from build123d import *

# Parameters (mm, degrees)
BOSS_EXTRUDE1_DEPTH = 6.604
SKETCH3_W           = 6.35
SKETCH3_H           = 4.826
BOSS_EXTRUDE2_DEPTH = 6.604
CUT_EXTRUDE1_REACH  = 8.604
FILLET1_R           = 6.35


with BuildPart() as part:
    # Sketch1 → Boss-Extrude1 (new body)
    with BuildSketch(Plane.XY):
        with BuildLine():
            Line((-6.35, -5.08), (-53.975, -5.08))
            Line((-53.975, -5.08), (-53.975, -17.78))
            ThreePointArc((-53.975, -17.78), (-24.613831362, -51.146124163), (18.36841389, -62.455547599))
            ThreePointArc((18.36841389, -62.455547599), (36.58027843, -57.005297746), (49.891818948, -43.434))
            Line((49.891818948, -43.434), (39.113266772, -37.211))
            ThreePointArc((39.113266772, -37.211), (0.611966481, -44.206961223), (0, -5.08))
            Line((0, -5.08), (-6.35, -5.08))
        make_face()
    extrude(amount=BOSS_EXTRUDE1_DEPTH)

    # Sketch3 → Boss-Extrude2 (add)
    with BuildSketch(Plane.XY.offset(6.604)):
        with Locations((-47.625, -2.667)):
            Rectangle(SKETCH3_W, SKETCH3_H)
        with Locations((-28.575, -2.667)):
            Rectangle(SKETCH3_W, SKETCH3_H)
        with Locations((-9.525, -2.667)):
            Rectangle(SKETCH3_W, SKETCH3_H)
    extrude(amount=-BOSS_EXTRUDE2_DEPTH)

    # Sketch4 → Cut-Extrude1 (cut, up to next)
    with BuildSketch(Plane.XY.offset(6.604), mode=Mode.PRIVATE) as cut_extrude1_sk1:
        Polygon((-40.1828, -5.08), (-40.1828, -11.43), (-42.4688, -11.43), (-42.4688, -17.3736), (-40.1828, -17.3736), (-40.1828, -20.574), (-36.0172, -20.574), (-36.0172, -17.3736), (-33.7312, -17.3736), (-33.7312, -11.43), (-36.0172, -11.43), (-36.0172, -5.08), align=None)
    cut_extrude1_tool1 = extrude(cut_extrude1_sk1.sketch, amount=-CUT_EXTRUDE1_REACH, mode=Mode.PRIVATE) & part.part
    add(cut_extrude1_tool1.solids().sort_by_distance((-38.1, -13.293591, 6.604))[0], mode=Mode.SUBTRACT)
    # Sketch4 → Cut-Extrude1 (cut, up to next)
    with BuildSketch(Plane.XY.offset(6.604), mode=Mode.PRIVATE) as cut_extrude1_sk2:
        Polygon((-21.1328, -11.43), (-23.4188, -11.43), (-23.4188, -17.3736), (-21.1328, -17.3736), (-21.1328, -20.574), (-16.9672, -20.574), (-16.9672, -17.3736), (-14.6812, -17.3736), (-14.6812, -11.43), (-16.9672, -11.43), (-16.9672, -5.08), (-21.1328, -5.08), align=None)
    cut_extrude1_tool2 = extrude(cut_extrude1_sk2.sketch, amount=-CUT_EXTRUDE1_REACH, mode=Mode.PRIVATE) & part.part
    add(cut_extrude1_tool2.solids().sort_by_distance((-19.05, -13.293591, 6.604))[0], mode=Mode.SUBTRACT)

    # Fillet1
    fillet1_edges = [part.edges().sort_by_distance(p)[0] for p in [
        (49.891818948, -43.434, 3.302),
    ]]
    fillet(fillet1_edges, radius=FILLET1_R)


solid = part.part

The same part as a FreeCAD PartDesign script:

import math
import FreeCAD as App
import Part
import Sketcher

V = App.Vector
Q = App.Units.Quantity


def edges_at(feature, points):
    """Names of the edges that pass closest to the given points."""
    edges = feature.Shape.Edges
    near = lambda p: min(range(len(edges)), key=lambda i: edges[i].distToShape(Part.Vertex(*p))[0])
    return sorted({f"Edge{near(p) + 1}" for p in points})

doc = App.newDocument("Part")
body = doc.addObject("PartDesign::Body", "Body")

sketch1 = doc.addObject("Sketcher::SketchObject", "Sketch")
body.addObject(sketch1)
sketch1.AttachmentSupport = (doc.XY_Plane, [""])
sketch1.MapMode = "FlatFace"
sketch1.addGeometry(Part.LineSegment(V(-54, -5, 0), V(-54, -18, 0)), False)
sketch1.addGeometry(Part.ArcOfCircle(Part.Circle(V(15, 14, 0), V(0, 0, 1), 76), math.radians(-156), math.radians(-88)), False)
sketch1.addGeometry(Part.ArcOfCircle(Part.Circle(V(17, -24, 0), V(0, 0, 1), 38), math.radians(-88), math.radians(-30)), False)
sketch1.addGeometry(Part.LineSegment(V(50, -43, 0), V(39, -37, 0)), False)
sketch1.addGeometry(Part.ArcOfCircle(Part.Circle(V(17, -24, 0), V(0, 0, 1), 26), math.radians(131), math.radians(330)), False)
sketch1.addGeometry(Part.LineSegment(V(0, -5, 0), V(-54, -5, 0)), False)
sketch1.addConstraint(Sketcher.Constraint("Coincident", 0, 2, 1, 1))
sketch1.addConstraint(Sketcher.Constraint("Tangent", 1, 2, 2, 1))
sketch1.addConstraint(Sketcher.Constraint("Coincident", 2, 2, 3, 1))
sketch1.addConstraint(Sketcher.Constraint("Coincident", 3, 2, 4, 2))
sketch1.addConstraint(Sketcher.Constraint("Coincident", 4, 1, 5, 1))
sketch1.addConstraint(Sketcher.Constraint("Coincident", 5, 2, 0, 1))
sketch1.addConstraint(Sketcher.Constraint("Vertical", 0))
sketch1.addConstraint(Sketcher.Constraint("Horizontal", 5))
sketch1.addConstraint(Sketcher.Constraint("Coincident", 4, 3, 2, 3))
sketch1.addConstraint(Sketcher.Constraint("PointOnObject", 4, 1, -2))
sketch1.addConstraint(Sketcher.Constraint("Radius", 1, Q("3 in")))
sketch1.addConstraint(Sketcher.Constraint("Radius", 2, Q("1.5 in")))
sketch1.addConstraint(Sketcher.Constraint("Radius", 4, Q("1.01 in")))
sketch1.addConstraint(Sketcher.Constraint("DistanceY", 0, 2, 0, 1, Q("0.5 in")))
sketch1.addConstraint(Sketcher.Constraint("Angle", 3, Q("150 deg")))
sketch1.addConstraint(Sketcher.Constraint("DistanceY", 0, 2, -1, 1, Q("0.7 in")))
sketch1.addConstraint(Sketcher.Constraint("DistanceX", 5, 2, 5, 1, Q("2.125 in")))
sketch1.addConstraint(Sketcher.Constraint("DistanceY", 2, 3, -1, 1, Q("0.96 in")))
sketch1.addConstraint(Sketcher.Constraint("DistanceY", 2, 2, -1, 1, Q("1.71 in")))
pad1 = doc.addObject("PartDesign::Pad", "Pad")
body.addObject(pad1)
pad1.Profile = sketch1
pad1.Length = Q("0.26 in")

sketch2 = doc.addObject("Sketcher::SketchObject", "Sketch001")
body.addObject(sketch2)
sketch2.AttachmentSupport = (doc.XY_Plane, [""])
sketch2.MapMode = "FlatFace"
sketch2.AttachmentOffset = App.Placement(V(0, 0, 0.26 * 25.4), App.Rotation())
sketch2.addGeometry(Part.LineSegment(V(-50.8, -0.3, 0), V(-50.8, -5.1, 0)), False)
sketch2.addGeometry(Part.LineSegment(V(-50.8, -5.1, 0), V(-44.5, -5.1, 0)), False)
sketch2.addGeometry(Part.LineSegment(V(-44.5, -5.1, 0), V(-44.5, -0.3, 0)), False)
sketch2.addGeometry(Part.LineSegment(V(-44.5, -0.3, 0), V(-50.8, -0.3, 0)), False)
sketch2.addGeometry(Part.LineSegment(V(-31.8, -0.3, 0), V(-31.8, -5.1, 0)), False)
sketch2.addGeometry(Part.LineSegment(V(-31.8, -5.1, 0), V(-25.4, -5.1, 0)), False)
sketch2.addGeometry(Part.LineSegment(V(-25.4, -5.1, 0), V(-25.4, -0.3, 0)), False)
sketch2.addGeometry(Part.LineSegment(V(-25.4, -0.3, 0), V(-31.8, -0.3, 0)), False)
sketch2.addGeometry(Part.LineSegment(V(-12.7, -0.3, 0), V(-12.7, -5.1, 0)), False)
sketch2.addGeometry(Part.LineSegment(V(-12.7, -5.1, 0), V(-6.3, -5.1, 0)), False)
sketch2.addGeometry(Part.LineSegment(V(-6.3, -5.1, 0), V(-6.3, -0.3, 0)), False)
sketch2.addGeometry(Part.LineSegment(V(-6.3, -0.3, 0), V(-12.7, -0.3, 0)), False)
sketch2.addConstraint(Sketcher.Constraint("Coincident", 0, 2, 1, 1))
sketch2.addConstraint(Sketcher.Constraint("Coincident", 1, 2, 2, 1))
sketch2.addConstraint(Sketcher.Constraint("Coincident", 2, 2, 3, 1))
sketch2.addConstraint(Sketcher.Constraint("Coincident", 3, 2, 0, 1))
sketch2.addConstraint(Sketcher.Constraint("Coincident", 4, 2, 5, 1))
sketch2.addConstraint(Sketcher.Constraint("Coincident", 5, 2, 6, 1))
sketch2.addConstraint(Sketcher.Constraint("Coincident", 6, 2, 7, 1))
sketch2.addConstraint(Sketcher.Constraint("Coincident", 7, 2, 4, 1))
sketch2.addConstraint(Sketcher.Constraint("Coincident", 8, 2, 9, 1))
sketch2.addConstraint(Sketcher.Constraint("Coincident", 9, 2, 10, 1))
sketch2.addConstraint(Sketcher.Constraint("Coincident", 10, 2, 11, 1))
sketch2.addConstraint(Sketcher.Constraint("Coincident", 11, 2, 8, 1))
sketch2.addConstraint(Sketcher.Constraint("Vertical", 0))
sketch2.addConstraint(Sketcher.Constraint("Horizontal", 1))
sketch2.addConstraint(Sketcher.Constraint("Vertical", 2))
sketch2.addConstraint(Sketcher.Constraint("Horizontal", 3))
sketch2.addConstraint(Sketcher.Constraint("Vertical", 4))
sketch2.addConstraint(Sketcher.Constraint("Horizontal", 5))
sketch2.addConstraint(Sketcher.Constraint("Vertical", 6))
sketch2.addConstraint(Sketcher.Constraint("Horizontal", 7))
sketch2.addConstraint(Sketcher.Constraint("Vertical", 8))
sketch2.addConstraint(Sketcher.Constraint("Horizontal", 9))
sketch2.addConstraint(Sketcher.Constraint("Vertical", 10))
sketch2.addConstraint(Sketcher.Constraint("Horizontal", 11))
sketch2.addConstraint(Sketcher.Constraint("Horizontal", 1, 2, 4, 2))
sketch2.addConstraint(Sketcher.Constraint("Horizontal", 3, 2, 6, 2))
sketch2.addConstraint(Sketcher.Constraint("Horizontal", 5, 2, 8, 2))
sketch2.addConstraint(Sketcher.Constraint("Horizontal", 7, 2, 10, 2))
sketch2.addConstraint(Sketcher.Constraint("Equal", 3, 5))
sketch2.addConstraint(Sketcher.Constraint("Equal", 7, 9))
sketch2.addConstraint(Sketcher.Constraint("DistanceX", 0, 2, -1, 1, Q("2 in")))
sketch2.addConstraint(Sketcher.Constraint("DistanceX", 5, 2, -1, 1, Q("1 in")))
sketch2.addConstraint(Sketcher.Constraint("DistanceX", 4, 2, 9, 2, Q("1 in")))
sketch2.addConstraint(Sketcher.Constraint("DistanceX", 1, 1, 1, 2, Q("0.25 in")))
sketch2.addConstraint(Sketcher.Constraint("DistanceY", 0, 2, 0, 1, Q("0.19 in")))
sketch2.addConstraint(Sketcher.Constraint("DistanceY", 0, 2, -1, 1, Q("0.2 in")))
pad2 = doc.addObject("PartDesign::Pad", "Pad001")
body.addObject(pad2)
pad2.Profile = sketch2
pad2.Length = Q("0.26 in")
pad2.Reversed = True

sketch3 = doc.addObject("Sketcher::SketchObject", "Sketch002")
body.addObject(sketch3)
sketch3.AttachmentSupport = (doc.XY_Plane, [""])
sketch3.MapMode = "FlatFace"
sketch3.AttachmentOffset = App.Placement(V(0, 0, 0.26 * 25.4), App.Rotation())
sketch3.addGeometry(Part.LineSegment(V(-40.2, -5.1, 0), V(-40.2, -11.4, 0)), False)
sketch3.addGeometry(Part.LineSegment(V(-40.2, -11.4, 0), V(-42.5, -11.4, 0)), False)
sketch3.addGeometry(Part.LineSegment(V(-42.5, -11.4, 0), V(-42.5, -17.4, 0)), False)
sketch3.addGeometry(Part.LineSegment(V(-42.5, -17.4, 0), V(-40.2, -17.4, 0)), False)
sketch3.addGeometry(Part.LineSegment(V(-40.2, -17.4, 0), V(-40.2, -20.6, 0)), False)
sketch3.addGeometry(Part.LineSegment(V(-40.2, -20.6, 0), V(-36, -20.6, 0)), False)
sketch3.addGeometry(Part.LineSegment(V(-36, -20.6, 0), V(-36, -17.4, 0)), False)
sketch3.addGeometry(Part.LineSegment(V(-36, -17.4, 0), V(-33.7, -17.4, 0)), False)
sketch3.addGeometry(Part.LineSegment(V(-33.7, -17.4, 0), V(-33.7, -11.4, 0)), False)
sketch3.addGeometry(Part.LineSegment(V(-33.7, -11.4, 0), V(-36, -11.4, 0)), False)
sketch3.addGeometry(Part.LineSegment(V(-36, -11.4, 0), V(-36, -5.1, 0)), False)
sketch3.addGeometry(Part.LineSegment(V(-36, -5.1, 0), V(-40.2, -5.1, 0)), False)
sketch3.addConstraint(Sketcher.Constraint("Coincident", 0, 2, 1, 1))
sketch3.addConstraint(Sketcher.Constraint("Coincident", 1, 2, 2, 1))
sketch3.addConstraint(Sketcher.Constraint("Coincident", 2, 2, 3, 1))
sketch3.addConstraint(Sketcher.Constraint("Coincident", 3, 2, 4, 1))
sketch3.addConstraint(Sketcher.Constraint("Coincident", 4, 2, 5, 1))
sketch3.addConstraint(Sketcher.Constraint("Coincident", 5, 2, 6, 1))
sketch3.addConstraint(Sketcher.Constraint("Coincident", 6, 2, 7, 1))
sketch3.addConstraint(Sketcher.Constraint("Coincident", 7, 2, 8, 1))
sketch3.addConstraint(Sketcher.Constraint("Coincident", 8, 2, 9, 1))
sketch3.addConstraint(Sketcher.Constraint("Coincident", 9, 2, 10, 1))
sketch3.addConstraint(Sketcher.Constraint("Coincident", 10, 2, 11, 1))
sketch3.addConstraint(Sketcher.Constraint("Coincident", 11, 2, 0, 1))
sketch3.addConstraint(Sketcher.Constraint("Vertical", 0))
sketch3.addConstraint(Sketcher.Constraint("Horizontal", 1))
sketch3.addConstraint(Sketcher.Constraint("Vertical", 2))
sketch3.addConstraint(Sketcher.Constraint("Horizontal", 3))
sketch3.addConstraint(Sketcher.Constraint("Vertical", 4))
sketch3.addConstraint(Sketcher.Constraint("Horizontal", 5))
sketch3.addConstraint(Sketcher.Constraint("Vertical", 6))
sketch3.addConstraint(Sketcher.Constraint("Horizontal", 7))
sketch3.addConstraint(Sketcher.Constraint("Vertical", 8))
sketch3.addConstraint(Sketcher.Constraint("Horizontal", 9))
sketch3.addConstraint(Sketcher.Constraint("Vertical", 10))
sketch3.addConstraint(Sketcher.Constraint("Horizontal", 11))
sketch3.addConstraint(Sketcher.Constraint("Horizontal", 3, 2, 6, 2))
sketch3.addConstraint(Sketcher.Constraint("Horizontal", 1, 2, 8, 2))
sketch3.addConstraint(Sketcher.Constraint("Vertical", 0, 2, 3, 2))
sketch3.addConstraint(Sketcher.Constraint("Vertical", 6, 2, 9, 2))
sketch3.addConstraint(Sketcher.Constraint("Equal", 3, 7))
sketch3.addConstraint(Sketcher.Constraint("DistanceX", 1, 2, 1, 1, Q("0.09 in")))
sketch3.addConstraint(Sketcher.Constraint("DistanceY", 0, 2, 0, 1, Q("0.25 in")))
sketch3.addConstraint(Sketcher.Constraint("DistanceY", 10, 2, -1, 1, Q("0.2 in")))
sketch3.addConstraint(Sketcher.Constraint("DistanceX", 5, 1, 5, 2, Q("0.164 in")))
sketch3.addConstraint(Sketcher.Constraint("DistanceY", 2, 2, 2, 1, Q("0.234 in")))
sketch3.addConstraint(Sketcher.Constraint("DistanceY", 4, 2, 4, 1, Q("0.126 in")))
sketch3.addConstraint(Sketcher.Constraint("DistanceX", 0, 2, -1, 1, Q("1.582 in")))
pocket1 = doc.addObject("PartDesign::Pocket", "Pocket")
body.addObject(pocket1)
pocket1.Profile = sketch3
pocket1.Type = "UpToFirst"

sketch4 = doc.addObject("Sketcher::SketchObject", "Sketch003")
body.addObject(sketch4)
sketch4.AttachmentSupport = (doc.XY_Plane, [""])
sketch4.MapMode = "FlatFace"
sketch4.AttachmentOffset = App.Placement(V(0, 0, 0.26 * 25.4), App.Rotation())
sketch4.addGeometry(Part.LineSegment(V(-21.1, -11.4, 0), V(-23.4, -11.4, 0)), False)
sketch4.addGeometry(Part.LineSegment(V(-23.4, -11.4, 0), V(-23.4, -17.4, 0)), False)
sketch4.addGeometry(Part.LineSegment(V(-23.4, -17.4, 0), V(-21.1, -17.4, 0)), False)
sketch4.addGeometry(Part.LineSegment(V(-21.1, -17.4, 0), V(-21.1, -20.6, 0)), False)
sketch4.addGeometry(Part.LineSegment(V(-21.1, -20.6, 0), V(-17, -20.6, 0)), False)
sketch4.addGeometry(Part.LineSegment(V(-17, -20.6, 0), V(-17, -17.4, 0)), False)
sketch4.addGeometry(Part.LineSegment(V(-17, -17.4, 0), V(-14.7, -17.4, 0)), False)
sketch4.addGeometry(Part.LineSegment(V(-14.7, -17.4, 0), V(-14.7, -11.4, 0)), False)
sketch4.addGeometry(Part.LineSegment(V(-14.7, -11.4, 0), V(-17, -11.4, 0)), False)
sketch4.addGeometry(Part.LineSegment(V(-17, -11.4, 0), V(-17, -5.1, 0)), False)
sketch4.addGeometry(Part.LineSegment(V(-17, -5.1, 0), V(-21.1, -5.1, 0)), False)
sketch4.addGeometry(Part.LineSegment(V(-21.1, -5.1, 0), V(-21.1, -11.4, 0)), False)
sketch4.addConstraint(Sketcher.Constraint("Coincident", 0, 2, 1, 1))
sketch4.addConstraint(Sketcher.Constraint("Coincident", 1, 2, 2, 1))
sketch4.addConstraint(Sketcher.Constraint("Coincident", 2, 2, 3, 1))
sketch4.addConstraint(Sketcher.Constraint("Coincident", 3, 2, 4, 1))
sketch4.addConstraint(Sketcher.Constraint("Coincident", 4, 2, 5, 1))
sketch4.addConstraint(Sketcher.Constraint("Coincident", 5, 2, 6, 1))
sketch4.addConstraint(Sketcher.Constraint("Coincident", 6, 2, 7, 1))
sketch4.addConstraint(Sketcher.Constraint("Coincident", 7, 2, 8, 1))
sketch4.addConstraint(Sketcher.Constraint("Coincident", 8, 2, 9, 1))
sketch4.addConstraint(Sketcher.Constraint("Coincident", 9, 2, 10, 1))
sketch4.addConstraint(Sketcher.Constraint("Coincident", 10, 2, 11, 1))
sketch4.addConstraint(Sketcher.Constraint("Coincident", 11, 2, 0, 1))
sketch4.addConstraint(Sketcher.Constraint("Horizontal", 0))
sketch4.addConstraint(Sketcher.Constraint("Vertical", 1))
sketch4.addConstraint(Sketcher.Constraint("Horizontal", 2))
sketch4.addConstraint(Sketcher.Constraint("Vertical", 3))
sketch4.addConstraint(Sketcher.Constraint("Horizontal", 4))
sketch4.addConstraint(Sketcher.Constraint("Vertical", 5))
sketch4.addConstraint(Sketcher.Constraint("Horizontal", 6))
sketch4.addConstraint(Sketcher.Constraint("Vertical", 7))
sketch4.addConstraint(Sketcher.Constraint("Horizontal", 8))
sketch4.addConstraint(Sketcher.Constraint("Vertical", 9))
sketch4.addConstraint(Sketcher.Constraint("Horizontal", 10))
sketch4.addConstraint(Sketcher.Constraint("Vertical", 11))
sketch4.addConstraint(Sketcher.Constraint("Horizontal", 2, 2, 5, 2))
sketch4.addConstraint(Sketcher.Constraint("Horizontal", 0, 2, 7, 2))
sketch4.addConstraint(Sketcher.Constraint("Vertical", 5, 2, 8, 2))
sketch4.addConstraint(Sketcher.Constraint("Vertical", 3, 2, 10, 2))
sketch4.addConstraint(Sketcher.Constraint("Equal", 2, 6))
sketch4.addConstraint(Sketcher.Constraint("DistanceX", 0, 2, 0, 1, Q("0.09 in")))
sketch4.addConstraint(Sketcher.Constraint("DistanceY", 9, 1, 9, 2, Q("0.25 in")))
sketch4.addConstraint(Sketcher.Constraint("DistanceY", 9, 2, -1, 1, Q("0.2 in")))
sketch4.addConstraint(Sketcher.Constraint("DistanceX", 4, 1, 4, 2, Q("0.164 in")))
sketch4.addConstraint(Sketcher.Constraint("DistanceY", 1, 2, 1, 1, Q("0.234 in")))
sketch4.addConstraint(Sketcher.Constraint("DistanceY", 3, 2, 3, 1, Q("0.126 in")))
sketch4.addConstraint(Sketcher.Constraint("DistanceX", 0, 2, -1, 1, Q("0.922 in")))
pocket2 = doc.addObject("PartDesign::Pocket", "Pocket001")
body.addObject(pocket2)
pocket2.Profile = sketch4
pocket2.Type = "UpToFirst"
doc.recompute()

fillet = doc.addObject("PartDesign::Fillet", "Fillet")
body.addObject(fillet)
fillet.Base = (pocket2, edges_at(pocket2, [(49.892, -43.434, 3.302)]))
fillet.Radius = Q("0.25 in")

doc.recompute()
